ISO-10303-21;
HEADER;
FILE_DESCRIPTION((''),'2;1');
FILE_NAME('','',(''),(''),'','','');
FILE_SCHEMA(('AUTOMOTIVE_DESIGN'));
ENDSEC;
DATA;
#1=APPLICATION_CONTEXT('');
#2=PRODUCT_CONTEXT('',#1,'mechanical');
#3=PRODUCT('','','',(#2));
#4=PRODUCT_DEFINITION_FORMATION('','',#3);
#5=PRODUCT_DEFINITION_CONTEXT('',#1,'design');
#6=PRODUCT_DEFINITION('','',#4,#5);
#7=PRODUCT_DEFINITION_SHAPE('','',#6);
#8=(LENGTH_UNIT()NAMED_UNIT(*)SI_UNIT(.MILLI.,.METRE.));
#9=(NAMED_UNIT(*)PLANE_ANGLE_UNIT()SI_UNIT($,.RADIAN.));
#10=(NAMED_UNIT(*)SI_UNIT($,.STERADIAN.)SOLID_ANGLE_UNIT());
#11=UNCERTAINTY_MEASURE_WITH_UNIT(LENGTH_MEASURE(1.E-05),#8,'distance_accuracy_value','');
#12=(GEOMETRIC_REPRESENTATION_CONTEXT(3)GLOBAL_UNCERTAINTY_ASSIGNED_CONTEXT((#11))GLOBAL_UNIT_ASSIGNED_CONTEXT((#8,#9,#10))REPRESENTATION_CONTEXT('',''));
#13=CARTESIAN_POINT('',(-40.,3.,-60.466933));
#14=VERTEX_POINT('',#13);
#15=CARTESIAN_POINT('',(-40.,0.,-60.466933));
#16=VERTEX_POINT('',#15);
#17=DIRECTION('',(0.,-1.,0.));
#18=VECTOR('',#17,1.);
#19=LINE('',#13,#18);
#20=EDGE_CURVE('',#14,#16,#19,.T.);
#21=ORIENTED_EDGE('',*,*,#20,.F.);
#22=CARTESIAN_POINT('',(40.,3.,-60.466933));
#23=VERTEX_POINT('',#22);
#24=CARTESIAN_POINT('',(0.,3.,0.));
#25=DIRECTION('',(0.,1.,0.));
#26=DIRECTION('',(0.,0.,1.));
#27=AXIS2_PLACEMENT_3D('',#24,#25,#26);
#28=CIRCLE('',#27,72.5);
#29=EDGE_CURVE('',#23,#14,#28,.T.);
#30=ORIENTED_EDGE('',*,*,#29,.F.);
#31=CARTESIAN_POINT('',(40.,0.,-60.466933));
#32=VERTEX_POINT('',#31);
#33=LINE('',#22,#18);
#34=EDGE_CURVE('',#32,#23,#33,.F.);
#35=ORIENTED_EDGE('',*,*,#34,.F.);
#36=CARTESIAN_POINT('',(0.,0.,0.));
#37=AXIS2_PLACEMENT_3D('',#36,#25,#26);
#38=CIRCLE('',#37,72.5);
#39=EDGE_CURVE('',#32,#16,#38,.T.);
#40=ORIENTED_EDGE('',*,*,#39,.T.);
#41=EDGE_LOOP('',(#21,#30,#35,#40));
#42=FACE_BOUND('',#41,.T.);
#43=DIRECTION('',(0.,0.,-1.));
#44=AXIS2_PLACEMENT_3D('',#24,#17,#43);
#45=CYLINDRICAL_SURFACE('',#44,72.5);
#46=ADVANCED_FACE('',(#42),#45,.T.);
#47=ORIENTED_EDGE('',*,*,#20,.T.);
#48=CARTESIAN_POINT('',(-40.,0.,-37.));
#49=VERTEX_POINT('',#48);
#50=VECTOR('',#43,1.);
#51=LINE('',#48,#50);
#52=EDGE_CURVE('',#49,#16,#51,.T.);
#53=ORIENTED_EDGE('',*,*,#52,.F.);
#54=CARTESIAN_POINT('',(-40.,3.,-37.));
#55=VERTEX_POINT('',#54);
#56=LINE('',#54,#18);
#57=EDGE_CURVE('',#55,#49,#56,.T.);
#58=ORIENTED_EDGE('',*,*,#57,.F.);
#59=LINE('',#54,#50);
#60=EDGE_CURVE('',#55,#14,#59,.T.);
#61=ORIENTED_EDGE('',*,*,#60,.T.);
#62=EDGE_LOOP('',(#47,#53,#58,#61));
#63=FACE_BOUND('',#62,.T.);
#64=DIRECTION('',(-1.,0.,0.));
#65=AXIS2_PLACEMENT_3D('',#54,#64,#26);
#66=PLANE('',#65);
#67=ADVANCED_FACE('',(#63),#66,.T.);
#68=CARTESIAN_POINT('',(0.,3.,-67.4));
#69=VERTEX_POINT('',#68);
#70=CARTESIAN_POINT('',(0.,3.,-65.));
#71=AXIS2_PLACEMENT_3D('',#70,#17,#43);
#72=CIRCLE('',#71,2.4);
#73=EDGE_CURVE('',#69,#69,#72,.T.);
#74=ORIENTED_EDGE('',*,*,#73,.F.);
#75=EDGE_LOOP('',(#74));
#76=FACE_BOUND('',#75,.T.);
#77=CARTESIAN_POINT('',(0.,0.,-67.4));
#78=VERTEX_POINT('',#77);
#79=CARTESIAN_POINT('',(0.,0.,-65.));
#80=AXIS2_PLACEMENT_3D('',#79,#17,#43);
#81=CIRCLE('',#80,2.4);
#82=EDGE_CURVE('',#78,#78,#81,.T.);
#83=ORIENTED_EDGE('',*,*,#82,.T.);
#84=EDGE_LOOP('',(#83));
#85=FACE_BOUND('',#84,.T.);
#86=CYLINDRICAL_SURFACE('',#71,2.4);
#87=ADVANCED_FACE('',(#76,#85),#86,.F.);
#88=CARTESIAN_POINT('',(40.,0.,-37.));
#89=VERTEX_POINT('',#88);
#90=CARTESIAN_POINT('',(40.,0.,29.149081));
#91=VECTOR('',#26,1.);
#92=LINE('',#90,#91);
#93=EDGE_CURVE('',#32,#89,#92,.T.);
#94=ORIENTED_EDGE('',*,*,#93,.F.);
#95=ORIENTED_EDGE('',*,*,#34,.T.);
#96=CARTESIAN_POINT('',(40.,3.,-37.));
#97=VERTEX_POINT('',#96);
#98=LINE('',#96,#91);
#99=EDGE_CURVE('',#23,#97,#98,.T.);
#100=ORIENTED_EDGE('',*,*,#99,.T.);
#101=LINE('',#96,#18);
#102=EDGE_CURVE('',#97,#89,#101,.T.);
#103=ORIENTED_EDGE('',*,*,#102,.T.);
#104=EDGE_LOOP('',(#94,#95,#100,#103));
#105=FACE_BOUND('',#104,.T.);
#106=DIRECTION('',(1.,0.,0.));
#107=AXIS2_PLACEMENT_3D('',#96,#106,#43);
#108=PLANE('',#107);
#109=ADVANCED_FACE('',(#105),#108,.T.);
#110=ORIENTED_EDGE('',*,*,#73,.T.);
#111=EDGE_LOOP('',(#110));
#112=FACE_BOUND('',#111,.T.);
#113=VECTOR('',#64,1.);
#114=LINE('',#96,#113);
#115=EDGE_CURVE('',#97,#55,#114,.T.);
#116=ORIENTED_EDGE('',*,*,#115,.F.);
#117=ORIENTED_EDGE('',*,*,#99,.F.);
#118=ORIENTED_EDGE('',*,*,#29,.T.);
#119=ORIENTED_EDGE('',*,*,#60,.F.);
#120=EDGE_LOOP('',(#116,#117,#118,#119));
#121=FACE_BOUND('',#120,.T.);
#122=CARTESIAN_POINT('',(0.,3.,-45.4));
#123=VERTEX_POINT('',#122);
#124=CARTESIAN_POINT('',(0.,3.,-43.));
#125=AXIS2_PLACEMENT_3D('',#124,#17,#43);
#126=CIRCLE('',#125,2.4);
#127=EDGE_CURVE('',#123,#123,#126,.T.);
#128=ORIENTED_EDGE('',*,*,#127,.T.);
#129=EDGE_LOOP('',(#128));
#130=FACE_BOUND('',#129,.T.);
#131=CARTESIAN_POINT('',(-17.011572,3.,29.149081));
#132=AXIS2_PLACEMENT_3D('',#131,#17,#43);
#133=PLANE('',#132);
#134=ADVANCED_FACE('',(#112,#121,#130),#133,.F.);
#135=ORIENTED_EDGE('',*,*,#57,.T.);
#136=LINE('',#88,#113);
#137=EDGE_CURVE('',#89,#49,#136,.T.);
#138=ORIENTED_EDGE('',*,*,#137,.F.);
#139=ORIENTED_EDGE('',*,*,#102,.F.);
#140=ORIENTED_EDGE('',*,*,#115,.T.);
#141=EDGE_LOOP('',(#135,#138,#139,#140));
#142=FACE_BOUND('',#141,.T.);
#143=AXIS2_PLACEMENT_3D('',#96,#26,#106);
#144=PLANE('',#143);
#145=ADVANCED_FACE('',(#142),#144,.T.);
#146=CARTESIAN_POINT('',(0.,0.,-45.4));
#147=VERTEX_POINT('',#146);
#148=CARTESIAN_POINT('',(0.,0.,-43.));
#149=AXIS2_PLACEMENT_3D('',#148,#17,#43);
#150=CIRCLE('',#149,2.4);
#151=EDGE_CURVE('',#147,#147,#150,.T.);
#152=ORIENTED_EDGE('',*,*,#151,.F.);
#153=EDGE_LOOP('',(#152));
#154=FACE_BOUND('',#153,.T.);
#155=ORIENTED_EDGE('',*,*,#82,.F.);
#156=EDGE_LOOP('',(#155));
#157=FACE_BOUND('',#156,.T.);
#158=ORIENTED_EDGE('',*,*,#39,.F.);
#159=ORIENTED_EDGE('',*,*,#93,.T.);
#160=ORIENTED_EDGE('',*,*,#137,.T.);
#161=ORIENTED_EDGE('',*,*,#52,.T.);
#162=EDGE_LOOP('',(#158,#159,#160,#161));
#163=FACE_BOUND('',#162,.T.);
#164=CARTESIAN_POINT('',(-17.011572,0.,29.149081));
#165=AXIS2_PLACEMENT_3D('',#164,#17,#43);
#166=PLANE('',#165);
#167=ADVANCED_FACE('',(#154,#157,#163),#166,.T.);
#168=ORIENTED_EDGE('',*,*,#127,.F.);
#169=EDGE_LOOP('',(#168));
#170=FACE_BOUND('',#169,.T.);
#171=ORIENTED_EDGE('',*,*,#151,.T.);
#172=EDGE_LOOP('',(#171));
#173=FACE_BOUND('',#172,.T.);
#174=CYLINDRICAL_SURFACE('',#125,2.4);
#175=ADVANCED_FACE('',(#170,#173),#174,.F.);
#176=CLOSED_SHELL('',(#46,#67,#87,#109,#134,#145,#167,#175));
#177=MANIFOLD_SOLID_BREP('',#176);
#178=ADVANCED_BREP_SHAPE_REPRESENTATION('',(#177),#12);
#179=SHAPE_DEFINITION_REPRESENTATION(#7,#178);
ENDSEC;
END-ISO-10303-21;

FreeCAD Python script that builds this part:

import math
import FreeCAD as App
import Part
import Sketcher

V = App.Vector
Q = App.Units.Quantity


def add_polygon(sketch, points):
    """Adds a closed chain of lines whose ends are joined by coincident constraints."""
    first, n = sketch.GeometryCount, len(points)
    for a, b in zip(points, points[1:] + points[:1]):
        sketch.addGeometry(Part.LineSegment(App.Vector(*a, 0), App.Vector(*b, 0)), False)
    for i in range(n):
        sketch.addConstraint(Sketcher.Constraint("Coincident", first + i, 2, first + (i + 1) % n, 1))

doc = App.newDocument("Part")
body = doc.addObject("PartDesign::Body", "Body")

sketch1 = body.newObject("Sketcher::SketchObject", "Sketch")
sketch1.AttachmentSupport = (doc.getObject("XZ_Plane"), [""])
sketch1.MapMode = "FlatFace"
sketch1.addGeometry(Part.ArcOfCircle(Part.Circle(V(0, 0, 0), V(0, 0, 1), 72), math.radians(120), math.radians(420)), False)
sketch1.addGeometry(Part.ArcOfCircle(Part.Circle(V(-34, 58, 0), V(0, 0, 1), 5), math.radians(38), math.radians(120)), False)
sketch1.addGeometry(Part.ArcOfCircle(Part.Circle(V(0, 85, 0), V(0, 0, 1), 38), math.radians(-142), math.radians(-38)), False)
sketch1.addGeometry(Part.ArcOfCircle(Part.Circle(V(34, 58, 0), V(0, 0, 1), 5), math.radians(60), math.radians(142)), False)
sketch1.addConstraint(Sketcher.Constraint("Tangent", 0, 1, 1, 2))
sketch1.addConstraint(Sketcher.Constraint("Tangent", 1, 1, 2, 1))
sketch1.addConstraint(Sketcher.Constraint("Tangent", 2, 2, 3, 2))
sketch1.addConstraint(Sketcher.Constraint("Tangent", 3, 1, 0, 2))
sketch1.addConstraint(Sketcher.Constraint("Coincident", 0, 3, -1, 1))
sketch1.addConstraint(Sketcher.Constraint("Equal", 1, 3))
sketch1.addConstraint(Sketcher.Constraint("PointOnObject", 2, 3, -2))
sketch1.addConstraint(Sketcher.Constraint("Radius", 1, Q("5 mm")))
sketch1.addConstraint(Sketcher.Constraint("Radius", 0, Q("72.5 mm")))
sketch1.addConstraint(Sketcher.Constraint("Radius", 2, Q("38.25 mm")))
sketch1.addConstraint(Sketcher.Constraint("DistanceY", -1, 1, 2, 3, Q("85 mm")))
pad1 = body.newObject("PartDesign::Pad", "Pad")
pad1.Profile = sketch1
pad1.Length = 3
pad1.Reversed = True

sketch2 = body.newObject("Sketcher::SketchObject", "Sketch001")
sketch2.AttachmentSupport = (doc.getObject("XZ_Plane"), [""])
sketch2.MapMode = "FlatFace"
add_polygon(sketch2, [(-93, 84), (-93, -93), (93, -93), (93, 84)])
add_polygon(sketch2, [(40, -77), (-40, -77), (-40, -37), (40, -37)])
sketch2.addConstraint(Sketcher.Constraint("Vertical", 0))
sketch2.addConstraint(Sketcher.Constraint("Horizontal", 1))
sketch2.addConstraint(Sketcher.Constraint("Vertical", 2))
sketch2.addConstraint(Sketcher.Constraint("Horizontal", 3))
sketch2.addConstraint(Sketcher.Constraint("Horizontal", 4))
sketch2.addConstraint(Sketcher.Constraint("Vertical", 5))
sketch2.addConstraint(Sketcher.Constraint("Horizontal", 6))
sketch2.addConstraint(Sketcher.Constraint("Vertical", 7))
sketch2.addConstraint(Sketcher.Constraint("DistanceX", 4, 2, 4, 1, Q("80 mm")))
sketch2.addConstraint(Sketcher.Constraint("DistanceY", 5, 1, 5, 2, Q("40 mm")))
sketch2.addConstraint(Sketcher.Constraint("DistanceX", 4, 2, -1, 1, Q("40 mm")))
sketch2.addConstraint(Sketcher.Constraint("DistanceY", 4, 2, -1, 1, Q("77 mm")))
sketch2.addConstraint(Sketcher.Constraint("DistanceX", 1, 1, 1, 2, Q("186.736 mm")))
sketch2.addConstraint(Sketcher.Constraint("DistanceY", 0, 2, 0, 1, Q("177.534 mm")))
sketch2.addConstraint(Sketcher.Constraint("DistanceX", 0, 2, -1, 1, Q("93.368 mm")))
sketch2.addConstraint(Sketcher.Constraint("DistanceY", 0, 2, -1, 1, Q("93.368 mm")))
pocket1 = body.newObject("PartDesign::Pocket", "Pocket")
pocket1.Profile = sketch2
pocket1.Type = "ThroughAll"

sketch3 = body.newObject("Sketcher::SketchObject", "Sketch002")
sketch3.AttachmentSupport = (doc.getObject("XZ_Plane"), [""])
sketch3.MapMode = "FlatFace"
sketch3.addGeometry(Part.Circle(V(0, -65, 0), V(0, 0, 1), 2.4), False)
sketch3.addGeometry(Part.Circle(V(0, -43, 0), V(0, 0, 1), 2.4), False)
sketch3.addConstraint(Sketcher.Constraint("Equal", 0, 1))
sketch3.addConstraint(Sketcher.Constraint("PointOnObject", 0, 3, -2))
sketch3.addConstraint(Sketcher.Constraint("PointOnObject", 1, 3, -2))
sketch3.addConstraint(Sketcher.Constraint("Diameter", 0, Q("4.8 mm")))
sketch3.addConstraint(Sketcher.Constraint("DistanceY", 0, 3, -1, 1, Q("65 mm")))
sketch3.addConstraint(Sketcher.Constraint("DistanceY", 1, 3, -1, 1, Q("43 mm")))
pocket2 = body.newObject("PartDesign::Pocket", "Pocket001")
pocket2.Profile = sketch3
pocket2.Type = "ThroughAll"

doc.recompute()
